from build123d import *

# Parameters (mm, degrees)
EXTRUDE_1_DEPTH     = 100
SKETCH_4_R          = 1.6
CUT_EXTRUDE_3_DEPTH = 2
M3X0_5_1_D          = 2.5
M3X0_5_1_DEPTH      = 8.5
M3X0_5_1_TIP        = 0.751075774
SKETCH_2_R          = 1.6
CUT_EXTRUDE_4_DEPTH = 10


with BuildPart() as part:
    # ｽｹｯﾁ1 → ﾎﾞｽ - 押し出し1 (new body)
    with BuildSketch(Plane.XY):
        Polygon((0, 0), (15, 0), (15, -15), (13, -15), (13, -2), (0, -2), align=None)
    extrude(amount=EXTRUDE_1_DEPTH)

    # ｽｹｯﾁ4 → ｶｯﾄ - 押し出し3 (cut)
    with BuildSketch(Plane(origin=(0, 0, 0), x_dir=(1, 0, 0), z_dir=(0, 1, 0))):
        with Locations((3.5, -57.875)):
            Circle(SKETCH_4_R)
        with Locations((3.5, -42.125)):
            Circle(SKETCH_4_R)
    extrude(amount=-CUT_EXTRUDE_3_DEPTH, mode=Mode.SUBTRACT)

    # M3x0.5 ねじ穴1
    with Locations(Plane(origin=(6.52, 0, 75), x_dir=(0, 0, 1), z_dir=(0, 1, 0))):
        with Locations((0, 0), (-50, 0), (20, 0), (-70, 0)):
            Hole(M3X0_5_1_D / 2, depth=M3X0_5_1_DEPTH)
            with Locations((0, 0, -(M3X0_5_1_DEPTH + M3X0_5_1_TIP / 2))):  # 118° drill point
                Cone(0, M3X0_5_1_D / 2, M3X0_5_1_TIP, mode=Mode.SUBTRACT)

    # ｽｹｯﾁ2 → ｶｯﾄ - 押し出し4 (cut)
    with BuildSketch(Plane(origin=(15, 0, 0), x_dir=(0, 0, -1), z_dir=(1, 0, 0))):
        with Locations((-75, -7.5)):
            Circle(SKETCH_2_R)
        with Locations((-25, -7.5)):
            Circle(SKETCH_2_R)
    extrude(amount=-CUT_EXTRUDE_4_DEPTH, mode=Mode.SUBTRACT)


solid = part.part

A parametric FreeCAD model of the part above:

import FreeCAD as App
import Part
import Sketcher

V = App.Vector
Q = App.Units.Quantity

doc = App.newDocument("Part")
body = doc.addObject("PartDesign::Body", "Body")

# Sketch on XY plane
sketch1 = body.newObject("Sketcher::SketchObject", "Sketch")
sketch1.AttachmentSupport = (doc.getObject("XY_Plane"), [""])
sketch1.MapMode = "FlatFace"
sketch1.addGeometry([
    Part.LineSegment(V(15, 0, 0), V(0, 0, 0)),  # 0
    Part.LineSegment(V(0, 0, 0), V(0, -2, 0)),  # 1
    Part.LineSegment(V(0, -2, 0), V(13, -2, 0)),  # 2
    Part.LineSegment(V(13, -2, 0), V(13, -15, 0)),  # 3
    Part.LineSegment(V(13, -15, 0), V(15, -15, 0)),  # 4
    Part.LineSegment(V(15, -15, 0), V(15, 0, 0)),  # 5
], False)
sketch1.addConstraint([
    Sketcher.Constraint("Coincident", 0, 2, 1, 1),
    Sketcher.Constraint("Coincident", 1, 2, 2, 1),
    Sketcher.Constraint("Coincident", 2, 2, 3, 1),
    Sketcher.Constraint("Coincident", 3, 2, 4, 1),
    Sketcher.Constraint("Coincident", 4, 2, 5, 1),
    Sketcher.Constraint("Coincident", 5, 2, 0, 1),
    Sketcher.Constraint("Horizontal", 0),
    Sketcher.Constraint("Vertical", 1),
    Sketcher.Constraint("Horizontal", 2),
    Sketcher.Constraint("Vertical", 3),
    Sketcher.Constraint("Horizontal", 4),
    Sketcher.Constraint("Vertical", 5),
    Sketcher.Constraint("Coincident", 0, 2, -1, 1),
    Sketcher.Constraint("Equal", 4, 1),
    Sketcher.Constraint("Equal", 2, 3),
    Sketcher.Constraint("DistanceX", 0, 2, 0, 1, Q("15 mm")),
    Sketcher.Constraint("DistanceX", 2, 1, 2, 2, Q("13 mm")),
])
pad1 = body.newObject("PartDesign::Pad", "Pad")
pad1.Profile = sketch1
pad1.Length = 100

# Sketch on XZ plane
sketch2 = body.newObject("Sketcher::SketchObject", "Sketch001")
sketch2.AttachmentSupport = (doc.getObject("XZ_Plane"), [""])
sketch2.MapMode = "FlatFace"
sketch2.addGeometry([
    Part.Circle(V(3.5, 57.9, 0), V(0, 0, 1), 1.6),
    Part.Circle(V(3.5, 42.1, 0), V(0, 0, 1), 1.6),
], False)
sketch2.addConstraint([
    Sketcher.Constraint("Equal", 0, 1),
    Sketcher.Constraint("Vertical", 0, 3, 1, 3),
    Sketcher.Constraint("Diameter", 0, Q("3.2 mm")),
    Sketcher.Constraint("DistanceX", -1, 1, 0, 3, Q("3.5 mm")),
    Sketcher.Constraint("DistanceY", 1, 3, 0, 3, Q("15.75 mm")),
    Sketcher.Constraint("DistanceY", -1, 1, 0, 3, Q("57.875 mm")),
])
pocket1 = body.newObject("PartDesign::Pocket", "Pocket")
pocket1.Profile = sketch2
pocket1.Length = 2
pocket1.Reversed = True

# Sketch on XZ plane
sketch3 = body.newObject("Sketcher::SketchObject", "Sketch002")
sketch3.AttachmentSupport = (doc.getObject("XZ_Plane"), [""])
sketch3.MapMode = "FlatFace"
sketch3.addGeometry([
    Part.Circle(V(6.5, 75, 0), V(0, 0, 1), 1.2),
    Part.Circle(V(6.5, 25, 0), V(0, 0, 1), 1.2),
    Part.Circle(V(6.5, 95, 0), V(0, 0, 1), 1.2),
    Part.Circle(V(6.5, 5, 0), V(0, 0, 1), 1.2),
], False)
sketch3.addConstraint([
    Sketcher.Constraint("Equal", 0, 1),
    Sketcher.Constraint("Equal", 1, 2),
    Sketcher.Constraint("Equal", 2, 3),
    Sketcher.Constraint("Vertical", 0, 3, 1, 3),
    Sketcher.Constraint("Vertical", 1, 3, 2, 3),
    Sketcher.Constraint("Vertical", 2, 3, 3, 3),
    Sketcher.Constraint("Diameter", 0, Q("2.5 mm")),
    Sketcher.Constraint("DistanceY", -1, 1, 0, 3, Q("75 mm")),
    Sketcher.Constraint("DistanceY", -1, 1, 1, 3, Q("25 mm")),
    Sketcher.Constraint("DistanceY", -1, 1, 2, 3, Q("95 mm")),
    Sketcher.Constraint("DistanceY", -1, 1, 3, 3, Q("5 mm")),
    Sketcher.Constraint("DistanceX", -1, 1, 0, 3, Q("6.52 mm")),
])
doc.recompute()
hole = body.newObject("PartDesign::Hole", "Hole")
hole.Profile = sketch3
hole.ThreadType = "None"
hole.Diameter = 2.5
hole.DepthType = "Dimension"
hole.Depth = 8.5
hole.DrillPoint = "Angled"
hole.DrillPointAngle = 118
hole.Reversed = True

# Sketch on YZ plane
sketch4 = body.newObject("Sketcher::SketchObject", "Sketch003")
sketch4.AttachmentSupport = (doc.getObject("YZ_Plane"), [""])
sketch4.MapMode = "FlatFace"
sketch4.AttachmentOffset = App.Placement(V(0, 0, 15), App.Rotation())
sketch4.addGeometry([
    Part.Circle(V(-7.5, 75, 0), V(0, 0, 1), 1.6),
    Part.Circle(V(-7.5, 25, 0), V(0, 0, 1), 1.6),
], False)
sketch4.addConstraint([
    Sketcher.Constraint("Equal", 0, 1),
    Sketcher.Constraint("Vertical", 0, 3, 1, 3),
    Sketcher.Constraint("Diameter", 0, Q("3.2 mm")),
    Sketcher.Constraint("DistanceY", -1, 1, 0, 3, Q("75 mm")),
    Sketcher.Constraint("DistanceY", -1, 1, 1, 3, Q("25 mm")),
    Sketcher.Constraint("DistanceX", 0, 3, -1, 1, Q("7.5 mm")),
])
pocket2 = body.newObject("PartDesign::Pocket", "Pocket001")
pocket2.Profile = sketch4
pocket2.Length = 10

doc.recompute()
